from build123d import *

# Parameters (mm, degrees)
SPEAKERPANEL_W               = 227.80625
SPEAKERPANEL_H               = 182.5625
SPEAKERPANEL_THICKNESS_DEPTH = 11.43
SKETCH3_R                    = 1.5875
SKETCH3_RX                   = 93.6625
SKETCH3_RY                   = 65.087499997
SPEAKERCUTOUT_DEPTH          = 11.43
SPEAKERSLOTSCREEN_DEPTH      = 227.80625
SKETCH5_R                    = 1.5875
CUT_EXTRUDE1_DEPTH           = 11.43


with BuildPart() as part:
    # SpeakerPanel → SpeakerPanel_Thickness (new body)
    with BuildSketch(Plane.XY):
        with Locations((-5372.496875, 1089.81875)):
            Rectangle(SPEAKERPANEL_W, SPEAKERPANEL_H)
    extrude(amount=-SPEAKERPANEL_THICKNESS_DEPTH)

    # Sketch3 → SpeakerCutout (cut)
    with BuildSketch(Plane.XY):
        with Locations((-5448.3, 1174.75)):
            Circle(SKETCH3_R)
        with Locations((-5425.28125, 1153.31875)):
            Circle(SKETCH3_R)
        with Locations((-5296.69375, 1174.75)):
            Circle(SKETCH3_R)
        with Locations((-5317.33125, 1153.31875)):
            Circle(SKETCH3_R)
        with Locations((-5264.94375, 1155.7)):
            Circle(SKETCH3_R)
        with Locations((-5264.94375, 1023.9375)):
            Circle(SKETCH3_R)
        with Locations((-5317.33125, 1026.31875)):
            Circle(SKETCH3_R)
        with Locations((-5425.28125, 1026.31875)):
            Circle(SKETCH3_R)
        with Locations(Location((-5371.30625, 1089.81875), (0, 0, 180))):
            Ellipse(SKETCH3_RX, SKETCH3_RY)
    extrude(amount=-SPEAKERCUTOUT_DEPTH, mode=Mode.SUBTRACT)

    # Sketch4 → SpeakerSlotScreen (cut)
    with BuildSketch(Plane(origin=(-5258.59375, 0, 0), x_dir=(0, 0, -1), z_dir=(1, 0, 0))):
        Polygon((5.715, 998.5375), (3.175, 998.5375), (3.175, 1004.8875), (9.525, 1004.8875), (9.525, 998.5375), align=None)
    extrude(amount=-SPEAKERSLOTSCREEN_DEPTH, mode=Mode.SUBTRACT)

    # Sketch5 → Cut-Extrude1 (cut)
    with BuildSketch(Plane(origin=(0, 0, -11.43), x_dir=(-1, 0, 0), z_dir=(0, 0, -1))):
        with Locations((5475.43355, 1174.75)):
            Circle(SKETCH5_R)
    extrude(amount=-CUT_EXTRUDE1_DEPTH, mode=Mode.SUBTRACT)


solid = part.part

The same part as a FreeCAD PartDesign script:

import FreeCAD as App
import Part
import Sketcher

V = App.Vector
Q = App.Units.Quantity


def add_polygon(sketch, points):
    """Adds a closed chain of lines whose ends are joined by coincident constraints."""
    first, n = sketch.GeometryCount, len(points)
    for a, b in zip(points, points[1:] + points[:1]):
        sketch.addGeometry(Part.LineSegment(App.Vector(*a, 0), App.Vector(*b, 0)), False)
    for i in range(n):
        sketch.addConstraint(Sketcher.Constraint("Coincident", first + i, 2, first + (i + 1) % n, 1))

doc = App.newDocument("Part")
params = doc.addObject("Spreadsheet::Sheet", "Params")
for row, (alias, value) in enumerate([
    ("sketch1_width", "8.96875 in"),
    ("sketch1_height", "7.1875 in"),
    ("pad1_length", "0.45 in"),
    ("sketch2_diameter", "0.125 in"),
    ("pocket1_length", "0.45 in"),
    ("sketch3_width", "0.25 in"),
    ("pocket2_length", "8.96875 in"),
    ("sketch4_diameter", "0.125 in"),
    ("pocket3_length", "0.45 in"),
], start=1):
    params.set(f"A{row}", alias)
    params.set(f"B{row}", "=" + value)
    params.setAlias(f"B{row}", alias)

body = doc.addObject("PartDesign::Body", "Body")

sketch1 = doc.addObject("Sketcher::SketchObject", "Sketch")
body.addObject(sketch1)
sketch1.AttachmentSupport = (doc.XY_Plane, [""])
sketch1.MapMode = "FlatFace"
add_polygon(sketch1, [(-5486, 1181), (-5486, 999), (-5259, 999), (-5259, 1181)])
sketch1.addConstraint([
    Sketcher.Constraint("Vertical", 0),
    Sketcher.Constraint("Horizontal", 1),
    Sketcher.Constraint("Vertical", 2),
    Sketcher.Constraint("Horizontal", 3),
    Sketcher.Constraint("DistanceX", 0, 2, -1, 1, Q("216 in")),
    Sketcher.Constraint("DistanceY", -1, 1, 2, 2, Q("46.5 in")),
    Sketcher.Constraint("DistanceX", 1, 1, 1, 2, Q("8.96875 in")),
    Sketcher.Constraint("DistanceY", 0, 2, 0, 1, Q("7.1875 in")),
])
sketch1.setExpression("Constraints[10]", "Params.sketch1_width")
sketch1.setExpression("Constraints[11]", "Params.sketch1_height")
pad1 = doc.addObject("PartDesign::Pad", "Pad")
body.addObject(pad1)
pad1.Profile = sketch1
pad1.setExpression("Length", "Params.pad1_length")
pad1.Reversed = True

sketch2 = doc.addObject("Sketcher::SketchObject", "Sketch001")
body.addObject(sketch2)
sketch2.AttachmentSupport = (doc.XY_Plane, [""])
sketch2.MapMode = "FlatFace"
sketch2.addGeometry([
    Part.Circle(V(-5448.3, 1174.75, 0), V(0, 0, 1), 1.5875),
    Part.Circle(V(-5425.28125, 1153.31875, 0), V(0, 0, 1), 1.5875),
    Part.Circle(V(-5296.69375, 1174.75, 0), V(0, 0, 1), 1.5875),
    Part.Circle(V(-5317.33125, 1153.31875, 0), V(0, 0, 1), 1.5875),
    Part.Circle(V(-5264.94375, 1155.7, 0), V(0, 0, 1), 1.5875),
    Part.Circle(V(-5264.94375, 1023.9375, 0), V(0, 0, 1), 1.5875),
    Part.Circle(V(-5317.33125, 1026.31875, 0), V(0, 0, 1), 1.5875),
    Part.Circle(V(-5425.28125, 1026.31875, 0), V(0, 0, 1), 1.5875),
    Part.Ellipse(V(-5464.96875, 1089.81875, 0), V(-5371.30625, 1024.73125, 0), V(-5371.30625, 1089.81875, 0)),
], False)
sketch2.addConstraint([
    Sketcher.Constraint("Block", 8),
    Sketcher.Constraint("Equal", 0, 1),
    Sketcher.Constraint("Equal", 1, 2),
    Sketcher.Constraint("Equal", 2, 3),
    Sketcher.Constraint("Equal", 3, 4),
    Sketcher.Constraint("Equal", 4, 5),
    Sketcher.Constraint("Equal", 5, 6),
    Sketcher.Constraint("Equal", 6, 7),
    Sketcher.Constraint("Horizontal", 0, 3, 2, 3),
    Sketcher.Constraint("Horizontal", 1, 3, 3, 3),
    Sketcher.Constraint("Horizontal", 6, 3, 7, 3),
    Sketcher.Constraint("Vertical", 4, 3, 5, 3),
    Sketcher.Constraint("Vertical", 3, 3, 6, 3),
    Sketcher.Constraint("Vertical", 1, 3, 7, 3),
    Sketcher.Constraint("Diameter", 0, Q("0.125 in")),
    Sketcher.Constraint("DistanceY", 6, 3, 3, 3, Q("5 in")),
    Sketcher.Constraint("DistanceX", 0, 3, -1, 1, Q("214.5 in")),
    Sketcher.Constraint("DistanceY", -1, 1, 4, 3, Q("45.5 in")),
    Sketcher.Constraint("DistanceY", -1, 1, 0, 3, Q("46.25 in")),
    Sketcher.Constraint("DistanceX", 1, 3, 3, 3, Q("4.25 in")),
    Sketcher.Constraint("DistanceX", 2, 3, 4, 3, Q("1.25 in")),
    Sketcher.Constraint("DistanceX", 1, 3, -1, 1, Q("213.59375 in")),
    Sketcher.Constraint("DistanceY", -1, 1, 1, 3, Q("45.40625 in")),
    Sketcher.Constraint("DistanceX", 2, 3, -1, 1, Q("208.53125 in")),
    Sketcher.Constraint("DistanceY", -1, 1, 5, 3, Q("40.3125 in")),
])
sketch2.setExpression("Constraints[14]", "Params.sketch2_diameter")
pocket1 = doc.addObject("PartDesign::Pocket", "Pocket")
body.addObject(pocket1)
pocket1.Profile = sketch2
pocket1.setExpression("Length", "Params.pocket1_length")

sketch3 = doc.addObject("Sketcher::SketchObject", "Sketch002")
body.addObject(sketch3)
sketch3.AttachmentSupport = (doc.YZ_Plane, [""])
sketch3.MapMode = "FlatFace"
sketch3.AttachmentOffset = App.Placement(V(0, 0, -207.03125 * 25.4), App.Rotation())
add_polygon(sketch3, [(999, -3), (999, -10), (1005, -10), (1005, -3)])
sketch3.addConstraint([
    Sketcher.Constraint("Vertical", 0),
    Sketcher.Constraint("Horizontal", 1),
    Sketcher.Constraint("Vertical", 2),
    Sketcher.Constraint("Horizontal", 3),
    Sketcher.Constraint("Equal", 3, 0),
    Sketcher.Constraint("DistanceX", 1, 1, 1, 2, Q("0.25 in")),
    Sketcher.Constraint("DistanceX", -1, 1, 0, 2, Q("39.3125 in")),
    Sketcher.Constraint("DistanceY", 0, 2, -1, 1, Q("0.375 in")),
])
sketch3.setExpression("Constraints[9]", "Params.sketch3_width")
pocket2 = doc.addObject("PartDesign::Pocket", "Pocket001")
body.addObject(pocket2)
pocket2.Profile = sketch3
pocket2.setExpression("Length", "Params.pocket2_length")

sketch4 = doc.addObject("Sketcher::SketchObject", "Sketch003")
body.addObject(sketch4)
sketch4.AttachmentSupport = (doc.XY_Plane, [""])
sketch4.MapMode = "FlatFace"
sketch4.AttachmentOffset = App.Placement(V(0, 0, -0.45 * 25.4), App.Rotation())
sketch4.addGeometry(Part.Circle(V(-5475.4, 1174.8, 0), V(0, 0, 1), 1.6), False)
sketch4.addConstraint([
    Sketcher.Constraint("Diameter", 0, Q("0.125 in")),
    Sketcher.Constraint("DistanceY", -1, 1, 0, 3, Q("46.25 in")),
    Sketcher.Constraint("DistanceX", 0, 3, -1, 1, 5475.43355),
])
sketch4.setExpression("Constraints[0]", "Params.sketch4_diameter")
pocket3 = doc.addObject("PartDesign::Pocket", "Pocket002")
body.addObject(pocket3)
pocket3.Profile = sketch4
pocket3.setExpression("Length", "Params.pocket3_length")
pocket3.Reversed = True

doc.recompute()
